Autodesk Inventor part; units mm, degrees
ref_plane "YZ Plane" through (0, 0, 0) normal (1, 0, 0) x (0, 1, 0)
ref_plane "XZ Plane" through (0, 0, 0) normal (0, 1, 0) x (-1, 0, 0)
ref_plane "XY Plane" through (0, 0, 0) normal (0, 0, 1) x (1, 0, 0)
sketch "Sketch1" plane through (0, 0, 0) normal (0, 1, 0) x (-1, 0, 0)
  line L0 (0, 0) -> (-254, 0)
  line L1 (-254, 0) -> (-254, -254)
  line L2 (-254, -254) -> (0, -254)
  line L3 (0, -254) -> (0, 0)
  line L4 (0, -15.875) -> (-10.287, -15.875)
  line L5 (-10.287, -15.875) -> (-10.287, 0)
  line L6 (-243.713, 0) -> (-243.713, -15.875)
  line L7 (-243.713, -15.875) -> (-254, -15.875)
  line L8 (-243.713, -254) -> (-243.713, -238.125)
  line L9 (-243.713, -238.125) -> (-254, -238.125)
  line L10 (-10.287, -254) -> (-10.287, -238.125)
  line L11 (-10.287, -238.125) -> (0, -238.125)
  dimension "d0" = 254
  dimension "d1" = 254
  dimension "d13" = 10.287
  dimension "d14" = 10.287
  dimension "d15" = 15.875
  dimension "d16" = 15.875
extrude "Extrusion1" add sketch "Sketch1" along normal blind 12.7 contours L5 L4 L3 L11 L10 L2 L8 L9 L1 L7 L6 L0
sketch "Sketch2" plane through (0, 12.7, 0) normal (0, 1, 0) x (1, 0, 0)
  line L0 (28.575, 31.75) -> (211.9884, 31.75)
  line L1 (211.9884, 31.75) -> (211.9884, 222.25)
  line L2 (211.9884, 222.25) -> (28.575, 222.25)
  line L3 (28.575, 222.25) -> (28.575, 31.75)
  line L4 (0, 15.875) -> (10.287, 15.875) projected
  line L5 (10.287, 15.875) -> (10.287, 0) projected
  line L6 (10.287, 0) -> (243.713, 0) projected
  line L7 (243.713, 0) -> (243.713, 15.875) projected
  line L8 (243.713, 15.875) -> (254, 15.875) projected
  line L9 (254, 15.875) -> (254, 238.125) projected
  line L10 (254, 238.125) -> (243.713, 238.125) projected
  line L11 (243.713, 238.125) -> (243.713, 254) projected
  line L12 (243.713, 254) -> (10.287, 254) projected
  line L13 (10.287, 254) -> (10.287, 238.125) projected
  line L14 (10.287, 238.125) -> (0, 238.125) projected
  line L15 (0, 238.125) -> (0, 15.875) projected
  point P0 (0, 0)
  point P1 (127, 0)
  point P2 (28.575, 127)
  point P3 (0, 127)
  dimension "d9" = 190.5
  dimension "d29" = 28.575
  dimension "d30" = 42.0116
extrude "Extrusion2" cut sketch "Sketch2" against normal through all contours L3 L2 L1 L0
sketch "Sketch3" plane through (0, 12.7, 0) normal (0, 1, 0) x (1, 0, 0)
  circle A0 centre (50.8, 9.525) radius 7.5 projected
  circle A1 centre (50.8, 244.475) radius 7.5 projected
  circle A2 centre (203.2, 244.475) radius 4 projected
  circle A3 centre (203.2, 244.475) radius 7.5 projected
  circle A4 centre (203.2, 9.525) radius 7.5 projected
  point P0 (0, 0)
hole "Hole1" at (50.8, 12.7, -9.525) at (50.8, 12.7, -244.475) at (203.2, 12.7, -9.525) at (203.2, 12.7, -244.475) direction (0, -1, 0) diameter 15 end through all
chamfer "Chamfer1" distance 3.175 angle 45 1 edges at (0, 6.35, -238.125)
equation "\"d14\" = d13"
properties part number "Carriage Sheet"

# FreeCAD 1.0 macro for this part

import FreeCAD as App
import Part
import Sketcher
from FreeCAD import Vector
Q = App.Units.Quantity


def edges_at(feature, points):
    """Names of the edges that pass closest to the given points."""
    edges = feature.Shape.Edges
    near = lambda p: min(range(len(edges)), key=lambda i: edges[i].distToShape(Part.Vertex(*p))[0])
    return sorted({f"Edge{near(p) + 1}" for p in points})


def add_polygon(sketch, points):
    """Adds a closed chain of lines whose ends are joined by coincident constraints."""
    first, n = sketch.GeometryCount, len(points)
    for a, b in zip(points, points[1:] + points[:1]):
        sketch.addGeometry(Part.LineSegment(App.Vector(*a, 0), App.Vector(*b, 0)), False)
    for i in range(n):
        sketch.addConstraint(Sketcher.Constraint("Coincident", first + i, 2, first + (i + 1) % n, 1))

doc = App.newDocument("Part")
body = doc.addObject("PartDesign::Body", "Body")

sketch1 = doc.addObject("Sketcher::SketchObject", "Sketch")
body.addObject(sketch1)
sketch1.AttachmentSupport = (doc.XZ_Plane, [""])
sketch1.MapMode = "FlatFace"
add_polygon(sketch1, [(10.287, -15.875), (10.287, 0), (243.713, 0), (243.713, -15.875), (254, -15.875), (254, -238.125), (243.713, -238.125), (243.713, -254), (10.287, -254), (10.287, -238.125), (0, -238.125), (0, -15.875)])
sketch1.addConstraint([
    Sketcher.Constraint("Vertical", 0),
    Sketcher.Constraint("Horizontal", 1),
    Sketcher.Constraint("Vertical", 2),
    Sketcher.Constraint("Horizontal", 3),
    Sketcher.Constraint("Vertical", 4),
    Sketcher.Constraint("Horizontal", 5),
    Sketcher.Constraint("Vertical", 6),
    Sketcher.Constraint("Horizontal", 7),
    Sketcher.Constraint("Vertical", 8),
    Sketcher.Constraint("Horizontal", 9),
    Sketcher.Constraint("Vertical", 10),
    Sketcher.Constraint("Horizontal", 11),
    Sketcher.Constraint("PointOnObject", 0, 2, -1),
    Sketcher.Constraint("PointOnObject", 9, 2, -2),
    Sketcher.Constraint("Horizontal", 5, 2, 8, 2),
    Sketcher.Constraint("Horizontal", 3, 2, 10, 2),
    Sketcher.Constraint("Vertical", 2, 2, 5, 2),
    Sketcher.Constraint("Vertical", 0, 2, 7, 2),
    Sketcher.Constraint("Equal", 5, 9),
    Sketcher.Constraint("Equal", 2, 6),
    Sketcher.Constraint("DistanceX", -1, 1, 3, 2, Q("10 in")),
    Sketcher.Constraint("DistanceY", 6, 2, -1, 1, Q("10 in")),
    Sketcher.Constraint("DistanceX", 3, 1, 3, 2, Q("0.405 in")),
    Sketcher.Constraint("DistanceY", 0, 1, 0, 2, Q("0.625 in")),
])
pad1 = doc.addObject("PartDesign::Pad", "Pad")
body.addObject(pad1)
pad1.Profile = sketch1
pad1.Length = Q("0.5 in")
pad1.Reversed = True

sketch2 = doc.addObject("Sketcher::SketchObject", "Sketch001")
body.addObject(sketch2)
sketch2.AttachmentSupport = (doc.XZ_Plane, [""])
sketch2.MapMode = "FlatFace"
sketch2.AttachmentOffset = App.Placement(Vector(0, 0, -0.5 * 25.4), App.Rotation())
add_polygon(sketch2, [(28.575, -222.25), (28.575, -31.75), (211.9884, -31.75), (211.9884, -222.25)])
sketch2.addConstraint([
    Sketcher.Constraint("Vertical", 0),
    Sketcher.Constraint("Horizontal", 1),
    Sketcher.Constraint("Vertical", 2),
    Sketcher.Constraint("Horizontal", 3),
    Sketcher.Constraint("DistanceY", 0, 1, 0, 2, Q("7.5 in")),
    Sketcher.Constraint("DistanceX", -1, 1, 0, 2, Q("1.125 in")),
    Sketcher.Constraint("DistanceX", 1, 1, 1, 2, Q("7.221 in")),
    Sketcher.Constraint("DistanceY", 0, 2, -1, 1, Q("1.25 in")),
])
pocket1 = doc.addObject("PartDesign::Pocket", "Pocket")
body.addObject(pocket1)
pocket1.Profile = sketch2
pocket1.Type = "ThroughAll"
pocket1.Reversed = True

sketch3 = doc.addObject("Sketcher::SketchObject", "Sketch002")
body.addObject(sketch3)
sketch3.AttachmentSupport = (doc.XZ_Plane, [""])
sketch3.MapMode = "FlatFace"
sketch3.AttachmentOffset = App.Placement(Vector(0, 0, -0.5 * 25.4), App.Rotation())
sketch3.addGeometry([
    Part.Circle(Vector(50.8, -9.525, 0), Vector(0, 0, 1), 7.5),
    Part.Circle(Vector(50.8, -244.475, 0), Vector(0, 0, 1), 7.5),
    Part.Circle(Vector(203.2, -9.525, 0), Vector(0, 0, 1), 7.5),
    Part.Circle(Vector(203.2, -244.475, 0), Vector(0, 0, 1), 7.5),
], False)
sketch3.addConstraint([
    Sketcher.Constraint("Equal", 0, 1),
    Sketcher.Constraint("Equal", 1, 2),
    Sketcher.Constraint("Equal", 2, 3),
    Sketcher.Constraint("Horizontal", 0, 3, 2, 3),
    Sketcher.Constraint("Horizontal", 1, 3, 3, 3),
    Sketcher.Constraint("Vertical", 0, 3, 1, 3),
    Sketcher.Constraint("Vertical", 2, 3, 3, 3),
    Sketcher.Constraint("DistanceX", -1, 1, 0, 3, Q("2 in")),
    Sketcher.Constraint("DistanceX", -1, 1, 2, 3, Q("8 in")),
    Sketcher.Constraint("Diameter", 0, Q("15 mm")),
    Sketcher.Constraint("DistanceY", 1, 3, 0, 3, Q("9.25 in")),
    Sketcher.Constraint("DistanceY", 0, 3, -1, 1, Q("0.375 in")),
])
doc.recompute()
hole = doc.addObject("PartDesign::Hole", "Hole")
body.addObject(hole)
hole.Profile = sketch3
hole.ThreadType = "None"
hole.Diameter = 15
hole.DepthType = "ThroughAll"
hole.Reversed = True
doc.recompute()

chamfer = doc.addObject("PartDesign::Chamfer", "Chamfer")
body.addObject(chamfer)
chamfer.Base = (hole, edges_at(hole, [(0, 6.35, -238.125)]))
chamfer.Size = Q("0.125 in")

doc.recompute()
